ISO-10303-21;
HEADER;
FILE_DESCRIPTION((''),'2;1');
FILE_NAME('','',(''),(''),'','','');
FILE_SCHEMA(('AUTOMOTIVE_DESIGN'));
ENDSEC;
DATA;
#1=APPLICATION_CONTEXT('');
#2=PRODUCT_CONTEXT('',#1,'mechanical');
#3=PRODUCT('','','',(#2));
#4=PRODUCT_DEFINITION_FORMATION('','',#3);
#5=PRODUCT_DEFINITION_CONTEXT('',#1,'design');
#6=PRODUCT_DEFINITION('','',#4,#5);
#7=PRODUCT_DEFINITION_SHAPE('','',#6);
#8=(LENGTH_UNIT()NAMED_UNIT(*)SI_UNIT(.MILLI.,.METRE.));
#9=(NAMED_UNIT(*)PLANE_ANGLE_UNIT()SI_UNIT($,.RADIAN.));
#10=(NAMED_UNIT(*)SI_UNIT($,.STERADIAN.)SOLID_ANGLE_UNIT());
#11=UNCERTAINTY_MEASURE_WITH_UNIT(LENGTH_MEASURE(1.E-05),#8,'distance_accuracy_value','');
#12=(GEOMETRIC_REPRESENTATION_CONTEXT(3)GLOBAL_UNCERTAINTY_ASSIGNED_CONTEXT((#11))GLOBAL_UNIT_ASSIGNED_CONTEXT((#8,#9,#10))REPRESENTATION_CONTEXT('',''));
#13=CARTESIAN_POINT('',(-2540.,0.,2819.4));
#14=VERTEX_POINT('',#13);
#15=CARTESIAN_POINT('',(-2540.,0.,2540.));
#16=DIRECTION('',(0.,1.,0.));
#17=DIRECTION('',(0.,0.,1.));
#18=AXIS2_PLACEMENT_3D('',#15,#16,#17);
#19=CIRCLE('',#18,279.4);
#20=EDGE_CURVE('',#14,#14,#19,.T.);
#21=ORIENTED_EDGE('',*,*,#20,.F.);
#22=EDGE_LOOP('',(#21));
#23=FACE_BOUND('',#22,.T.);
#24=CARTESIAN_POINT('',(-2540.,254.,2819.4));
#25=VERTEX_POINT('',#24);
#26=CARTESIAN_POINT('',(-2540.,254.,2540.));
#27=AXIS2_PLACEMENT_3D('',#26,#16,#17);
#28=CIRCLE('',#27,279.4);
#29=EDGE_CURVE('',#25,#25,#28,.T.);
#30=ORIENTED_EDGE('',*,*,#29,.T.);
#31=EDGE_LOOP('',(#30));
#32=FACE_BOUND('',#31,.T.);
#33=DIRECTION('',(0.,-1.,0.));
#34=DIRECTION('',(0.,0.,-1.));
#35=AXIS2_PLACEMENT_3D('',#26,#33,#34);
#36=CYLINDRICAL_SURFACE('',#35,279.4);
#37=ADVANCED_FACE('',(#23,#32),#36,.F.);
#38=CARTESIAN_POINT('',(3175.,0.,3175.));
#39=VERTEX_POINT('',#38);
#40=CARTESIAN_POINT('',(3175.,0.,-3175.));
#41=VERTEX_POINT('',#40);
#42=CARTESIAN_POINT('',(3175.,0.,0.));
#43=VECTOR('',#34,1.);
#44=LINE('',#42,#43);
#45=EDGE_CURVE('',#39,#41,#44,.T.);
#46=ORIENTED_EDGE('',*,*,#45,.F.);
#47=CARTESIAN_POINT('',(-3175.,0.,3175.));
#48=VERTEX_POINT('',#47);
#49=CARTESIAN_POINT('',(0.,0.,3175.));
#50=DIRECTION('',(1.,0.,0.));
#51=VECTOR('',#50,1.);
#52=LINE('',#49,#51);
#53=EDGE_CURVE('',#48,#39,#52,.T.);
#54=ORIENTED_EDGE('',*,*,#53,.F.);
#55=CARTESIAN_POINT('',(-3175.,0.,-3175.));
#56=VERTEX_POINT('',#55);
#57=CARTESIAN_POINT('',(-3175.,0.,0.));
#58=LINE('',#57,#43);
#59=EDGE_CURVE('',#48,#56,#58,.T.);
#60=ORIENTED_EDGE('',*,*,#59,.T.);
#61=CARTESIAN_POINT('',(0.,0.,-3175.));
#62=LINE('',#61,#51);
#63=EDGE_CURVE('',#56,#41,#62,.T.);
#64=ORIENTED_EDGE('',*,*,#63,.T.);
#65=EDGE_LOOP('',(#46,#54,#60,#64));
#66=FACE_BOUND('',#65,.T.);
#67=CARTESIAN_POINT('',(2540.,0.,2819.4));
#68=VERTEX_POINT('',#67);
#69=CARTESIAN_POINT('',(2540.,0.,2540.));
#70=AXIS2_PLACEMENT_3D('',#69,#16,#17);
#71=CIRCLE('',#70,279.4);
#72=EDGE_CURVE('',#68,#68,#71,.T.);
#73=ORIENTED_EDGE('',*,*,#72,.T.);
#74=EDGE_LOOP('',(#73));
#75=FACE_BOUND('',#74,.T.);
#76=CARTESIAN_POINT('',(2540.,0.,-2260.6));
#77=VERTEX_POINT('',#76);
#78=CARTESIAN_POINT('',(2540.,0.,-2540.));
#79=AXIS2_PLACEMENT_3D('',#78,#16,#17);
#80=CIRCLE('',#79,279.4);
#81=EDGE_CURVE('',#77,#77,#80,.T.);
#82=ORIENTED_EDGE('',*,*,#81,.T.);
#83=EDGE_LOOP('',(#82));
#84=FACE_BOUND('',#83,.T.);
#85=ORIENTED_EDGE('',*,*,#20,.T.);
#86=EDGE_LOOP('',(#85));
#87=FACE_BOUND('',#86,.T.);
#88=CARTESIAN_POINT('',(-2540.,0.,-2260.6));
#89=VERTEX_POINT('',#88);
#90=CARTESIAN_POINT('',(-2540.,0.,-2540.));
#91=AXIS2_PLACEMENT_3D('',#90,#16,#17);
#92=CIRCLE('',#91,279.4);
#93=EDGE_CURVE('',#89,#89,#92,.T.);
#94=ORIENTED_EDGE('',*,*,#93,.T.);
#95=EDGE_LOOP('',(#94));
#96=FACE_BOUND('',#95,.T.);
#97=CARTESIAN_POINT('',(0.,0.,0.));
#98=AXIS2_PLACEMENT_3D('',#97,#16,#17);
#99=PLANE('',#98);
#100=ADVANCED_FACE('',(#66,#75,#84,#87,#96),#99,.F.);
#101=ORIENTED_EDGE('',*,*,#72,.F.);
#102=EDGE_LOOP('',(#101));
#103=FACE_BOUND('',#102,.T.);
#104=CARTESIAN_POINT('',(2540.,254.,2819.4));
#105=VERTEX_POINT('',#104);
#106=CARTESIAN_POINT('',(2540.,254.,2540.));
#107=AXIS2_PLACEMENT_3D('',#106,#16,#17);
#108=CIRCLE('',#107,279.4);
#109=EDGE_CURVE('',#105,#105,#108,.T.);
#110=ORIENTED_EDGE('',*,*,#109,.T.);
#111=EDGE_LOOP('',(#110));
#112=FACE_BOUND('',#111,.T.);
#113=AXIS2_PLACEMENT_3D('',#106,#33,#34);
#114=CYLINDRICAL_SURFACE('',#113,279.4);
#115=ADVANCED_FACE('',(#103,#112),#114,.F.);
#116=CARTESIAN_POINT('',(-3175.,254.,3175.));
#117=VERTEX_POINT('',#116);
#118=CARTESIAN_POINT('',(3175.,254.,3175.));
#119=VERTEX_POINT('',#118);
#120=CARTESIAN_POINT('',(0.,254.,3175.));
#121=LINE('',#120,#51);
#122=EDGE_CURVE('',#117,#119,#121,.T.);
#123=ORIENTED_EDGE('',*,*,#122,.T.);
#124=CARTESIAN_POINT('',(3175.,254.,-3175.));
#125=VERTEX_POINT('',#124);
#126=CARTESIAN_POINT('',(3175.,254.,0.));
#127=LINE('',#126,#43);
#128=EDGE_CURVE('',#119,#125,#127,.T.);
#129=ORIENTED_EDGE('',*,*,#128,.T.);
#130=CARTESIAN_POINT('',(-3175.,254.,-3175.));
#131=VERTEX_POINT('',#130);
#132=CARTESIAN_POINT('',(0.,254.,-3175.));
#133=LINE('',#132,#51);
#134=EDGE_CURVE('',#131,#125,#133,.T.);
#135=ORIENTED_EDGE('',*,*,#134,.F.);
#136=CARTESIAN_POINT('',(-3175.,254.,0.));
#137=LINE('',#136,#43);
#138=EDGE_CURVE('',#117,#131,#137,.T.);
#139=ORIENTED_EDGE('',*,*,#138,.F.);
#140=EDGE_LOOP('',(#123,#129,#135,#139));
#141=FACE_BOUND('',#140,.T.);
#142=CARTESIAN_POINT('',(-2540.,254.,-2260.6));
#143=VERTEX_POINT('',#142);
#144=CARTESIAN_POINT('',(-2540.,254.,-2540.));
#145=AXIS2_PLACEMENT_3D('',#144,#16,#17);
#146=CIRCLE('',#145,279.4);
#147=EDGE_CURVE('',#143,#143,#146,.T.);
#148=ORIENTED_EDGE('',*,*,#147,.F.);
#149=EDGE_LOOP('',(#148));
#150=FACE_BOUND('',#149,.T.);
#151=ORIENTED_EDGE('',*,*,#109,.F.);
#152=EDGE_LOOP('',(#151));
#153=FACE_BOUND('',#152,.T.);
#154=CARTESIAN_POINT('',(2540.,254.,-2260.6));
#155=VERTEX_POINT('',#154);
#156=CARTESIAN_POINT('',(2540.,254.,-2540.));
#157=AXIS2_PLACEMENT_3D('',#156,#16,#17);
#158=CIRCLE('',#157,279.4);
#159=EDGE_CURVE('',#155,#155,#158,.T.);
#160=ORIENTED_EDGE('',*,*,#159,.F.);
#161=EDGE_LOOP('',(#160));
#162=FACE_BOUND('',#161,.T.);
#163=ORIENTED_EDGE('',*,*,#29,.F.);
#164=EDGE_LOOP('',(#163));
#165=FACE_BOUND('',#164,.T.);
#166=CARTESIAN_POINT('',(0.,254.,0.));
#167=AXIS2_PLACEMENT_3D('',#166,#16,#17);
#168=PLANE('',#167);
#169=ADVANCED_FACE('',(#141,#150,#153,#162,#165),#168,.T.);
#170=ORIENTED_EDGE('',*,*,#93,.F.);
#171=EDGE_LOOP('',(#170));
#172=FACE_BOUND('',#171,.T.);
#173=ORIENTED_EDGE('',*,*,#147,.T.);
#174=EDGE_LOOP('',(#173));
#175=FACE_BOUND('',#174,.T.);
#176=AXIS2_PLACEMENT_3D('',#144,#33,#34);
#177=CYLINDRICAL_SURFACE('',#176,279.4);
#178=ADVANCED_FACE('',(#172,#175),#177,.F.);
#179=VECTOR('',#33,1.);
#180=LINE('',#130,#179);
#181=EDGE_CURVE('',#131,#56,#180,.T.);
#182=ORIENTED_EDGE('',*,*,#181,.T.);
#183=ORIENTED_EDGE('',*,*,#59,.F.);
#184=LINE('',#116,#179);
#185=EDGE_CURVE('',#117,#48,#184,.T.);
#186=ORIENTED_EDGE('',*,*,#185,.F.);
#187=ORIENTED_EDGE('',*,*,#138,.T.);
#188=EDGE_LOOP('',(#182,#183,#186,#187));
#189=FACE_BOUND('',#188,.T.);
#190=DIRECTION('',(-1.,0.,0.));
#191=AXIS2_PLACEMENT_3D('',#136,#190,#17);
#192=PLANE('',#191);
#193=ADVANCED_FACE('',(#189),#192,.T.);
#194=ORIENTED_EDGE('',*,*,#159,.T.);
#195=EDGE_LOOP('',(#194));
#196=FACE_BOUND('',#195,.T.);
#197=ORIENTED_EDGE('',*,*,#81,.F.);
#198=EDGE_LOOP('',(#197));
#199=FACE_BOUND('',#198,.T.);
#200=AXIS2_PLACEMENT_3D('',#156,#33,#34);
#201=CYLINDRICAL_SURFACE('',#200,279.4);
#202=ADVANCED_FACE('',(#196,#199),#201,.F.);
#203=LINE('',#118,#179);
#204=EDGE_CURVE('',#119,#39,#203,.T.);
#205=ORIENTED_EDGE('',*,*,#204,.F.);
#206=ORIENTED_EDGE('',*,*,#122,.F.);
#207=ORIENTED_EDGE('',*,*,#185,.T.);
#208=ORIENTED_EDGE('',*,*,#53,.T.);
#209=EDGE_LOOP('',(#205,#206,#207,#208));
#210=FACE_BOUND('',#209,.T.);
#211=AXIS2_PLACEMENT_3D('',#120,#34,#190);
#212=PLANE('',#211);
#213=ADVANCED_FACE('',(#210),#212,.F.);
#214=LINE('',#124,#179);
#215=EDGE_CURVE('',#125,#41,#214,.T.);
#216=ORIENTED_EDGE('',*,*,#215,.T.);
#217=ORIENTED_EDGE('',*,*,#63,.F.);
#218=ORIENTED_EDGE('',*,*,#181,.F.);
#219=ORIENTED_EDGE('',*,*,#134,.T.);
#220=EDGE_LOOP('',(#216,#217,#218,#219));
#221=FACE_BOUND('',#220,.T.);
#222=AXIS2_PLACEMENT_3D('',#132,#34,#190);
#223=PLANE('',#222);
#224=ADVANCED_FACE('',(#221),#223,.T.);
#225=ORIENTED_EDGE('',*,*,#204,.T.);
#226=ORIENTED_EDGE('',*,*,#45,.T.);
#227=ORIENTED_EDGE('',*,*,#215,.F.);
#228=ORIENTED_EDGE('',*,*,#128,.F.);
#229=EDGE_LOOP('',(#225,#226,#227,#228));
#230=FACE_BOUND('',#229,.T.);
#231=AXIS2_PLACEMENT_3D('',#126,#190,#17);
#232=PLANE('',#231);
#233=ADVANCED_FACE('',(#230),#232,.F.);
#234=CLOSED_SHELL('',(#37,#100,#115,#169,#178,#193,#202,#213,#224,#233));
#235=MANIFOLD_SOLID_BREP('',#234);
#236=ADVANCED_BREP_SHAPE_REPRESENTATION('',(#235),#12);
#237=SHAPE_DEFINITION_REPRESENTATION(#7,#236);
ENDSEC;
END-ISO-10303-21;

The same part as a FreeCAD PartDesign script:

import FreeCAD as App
import Part
import Sketcher
from FreeCAD import Vector
Q = App.Units.Quantity


def add_polygon(sketch, points):
    """Adds a closed chain of lines whose ends are joined by coincident constraints."""
    first, n = sketch.GeometryCount, len(points)
    for a, b in zip(points, points[1:] + points[:1]):
        sketch.addGeometry(Part.LineSegment(App.Vector(*a, 0), App.Vector(*b, 0)), False)
    for i in range(n):
        sketch.addConstraint(Sketcher.Constraint("Coincident", first + i, 2, first + (i + 1) % n, 1))

doc = App.newDocument("Part")
params = doc.addObject("Spreadsheet::Sheet", "Params")
for row, (alias, value) in enumerate([
    ("sketch1_diameter", "22 in"),
    ("sketch1_width", "250 in"),
    ("pad1_length", "10 in"),
], start=1):
    params.set(f"A{row}", alias)
    params.set(f"B{row}", "=" + value)
    params.setAlias(f"B{row}", alias)

body = doc.addObject("PartDesign::Body", "Body")

# Sketch on XZ plane
sketch1 = body.newObject("Sketcher::SketchObject", "Sketch")
sketch1.AttachmentSupport = (doc.getObject("XZ_Plane"), [""])
sketch1.MapMode = "FlatFace"
add_polygon(sketch1, [(-3175, -3175), (-3175, 3175), (3175, 3175), (3175, -3175)])  # lines 0-3
sketch1.addGeometry(Part.Circle(Vector(-2540, 2540, 0), Vector(0, 0, 1), 279.4), False)  # 4
sketch1.addGeometry(Part.Circle(Vector(2540, 2540, 0), Vector(0, 0, 1), 279.4), False)  # 5
sketch1.addGeometry(Part.Circle(Vector(-2540, -2540, 0), Vector(0, 0, 1), 279.4), False)  # 6
sketch1.addGeometry(Part.Circle(Vector(2540, -2540, 0), Vector(0, 0, 1), 279.4), False)  # 7
sketch1.addConstraint(Sketcher.Constraint("Vertical", 0))
sketch1.addConstraint(Sketcher.Constraint("Horizontal", 1))
sketch1.addConstraint(Sketcher.Constraint("Vertical", 2))
sketch1.addConstraint(Sketcher.Constraint("Horizontal", 3))
sketch1.addConstraint(Sketcher.Constraint("Equal", 4, 5))
sketch1.addConstraint(Sketcher.Constraint("Equal", 5, 6))
sketch1.addConstraint(Sketcher.Constraint("Equal", 6, 7))
sketch1.addConstraint(Sketcher.Constraint("Symmetric", 5, 3, 6, 3, -1, 1))
sketch1.addConstraint(Sketcher.Constraint("Symmetric", 4, 3, 7, 3, -1, 1))
sketch1.addConstraint(Sketcher.Constraint("Symmetric", 0, 2, 2, 2, -1, 1))
sketch1.addConstraint(Sketcher.Constraint("Symmetric", 4, 3, 5, 3, -2))
sketch1.addConstraint(Sketcher.Constraint("Equal", 3, 0))
sketch1.addConstraint(Sketcher.Constraint("Diameter", 4, Q("22 in")))
sketch1.addConstraint(Sketcher.Constraint("DistanceX", 1, 1, 1, 2, Q("250 in")))
sketch1.addConstraint(Sketcher.Constraint("DistanceX", 4, 3, -1, 1, Q("100 in")))
sketch1.addConstraint(Sketcher.Constraint("DistanceY", -1, 1, 4, 3, Q("100 in")))
sketch1.setExpression("Constraints[16]", "Params.sketch1_diameter")
sketch1.setExpression("Constraints[17]", "Params.sketch1_width")
pad1 = body.newObject("PartDesign::Pad", "Pad")
pad1.Profile = sketch1
pad1.setExpression("Length", "Params.pad1_length")
pad1.Reversed = True

doc.recompute()
